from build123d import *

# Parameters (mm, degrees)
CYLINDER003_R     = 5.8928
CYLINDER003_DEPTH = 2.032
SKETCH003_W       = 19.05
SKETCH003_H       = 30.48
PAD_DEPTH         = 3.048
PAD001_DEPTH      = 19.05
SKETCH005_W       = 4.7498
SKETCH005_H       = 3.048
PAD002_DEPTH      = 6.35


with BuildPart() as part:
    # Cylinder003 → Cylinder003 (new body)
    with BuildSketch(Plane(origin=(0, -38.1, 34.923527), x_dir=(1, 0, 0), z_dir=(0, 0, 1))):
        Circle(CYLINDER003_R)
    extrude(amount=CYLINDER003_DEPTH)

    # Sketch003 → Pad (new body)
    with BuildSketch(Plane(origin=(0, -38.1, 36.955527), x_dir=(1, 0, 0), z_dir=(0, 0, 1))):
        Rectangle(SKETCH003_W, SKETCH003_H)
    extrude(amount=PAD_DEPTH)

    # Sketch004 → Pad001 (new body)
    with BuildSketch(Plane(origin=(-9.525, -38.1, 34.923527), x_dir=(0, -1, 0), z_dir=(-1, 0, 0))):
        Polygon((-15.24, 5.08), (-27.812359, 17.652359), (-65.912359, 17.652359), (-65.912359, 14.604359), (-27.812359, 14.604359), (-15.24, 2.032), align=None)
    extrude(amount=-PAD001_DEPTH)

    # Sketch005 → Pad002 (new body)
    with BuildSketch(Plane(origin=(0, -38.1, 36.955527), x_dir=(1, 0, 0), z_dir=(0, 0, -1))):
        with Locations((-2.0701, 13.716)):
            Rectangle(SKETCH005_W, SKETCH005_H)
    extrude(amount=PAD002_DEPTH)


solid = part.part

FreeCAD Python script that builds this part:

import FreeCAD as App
import Part
import Sketcher

V = App.Vector
Q = App.Units.Quantity


def add_polygon(sketch, points):
    """Adds a closed chain of lines whose ends are joined by coincident constraints."""
    first, n = sketch.GeometryCount, len(points)
    for a, b in zip(points, points[1:] + points[:1]):
        sketch.addGeometry(Part.LineSegment(App.Vector(*a, 0), App.Vector(*b, 0)), False)
    for i in range(n):
        sketch.addConstraint(Sketcher.Constraint("Coincident", first + i, 2, first + (i + 1) % n, 1))

doc = App.newDocument("Part")
params = doc.addObject("Spreadsheet::Sheet", "Params")
for row, (alias, value) in enumerate([
    ("sketch1_diameter", "0.464 in"),
    ("pad1_length", "0.08 in"),
    ("sketch2_height", "1.2 in"),
    ("sketch2_width", "0.75 in"),
    ("pad2_length", "0.12 in"),
    ("sketch3_width", "1.5 in"),
    ("sketch3_length", "0.7 in"),
    ("sketch3_height", "0.12 in"),
    ("pad3_length", "0.75 in"),
    ("sketch4_height", "0.12 in"),
    ("sketch4_width", "0.187 in"),
    ("pad4_length", "0.25 in"),
], start=1):
    params.set(f"A{row}", alias)
    params.set(f"B{row}", "=" + value)
    params.setAlias(f"B{row}", alias)

body = doc.addObject("PartDesign::Body", "Body")

# Sketch on XY plane
sketch1 = body.newObject("Sketcher::SketchObject", "Sketch")
sketch1.AttachmentSupport = (doc.getObject("XY_Plane"), [""])
sketch1.MapMode = "FlatFace"
sketch1.AttachmentOffset = App.Placement(V(0, 0, 34.923527), App.Rotation())
sketch1.addGeometry(Part.Circle(V(0, -38, 0), V(0, 0, 1), 6), False)
sketch1.addConstraint([
    Sketcher.Constraint("PointOnObject", 0, 3, -2),
    Sketcher.Constraint("Diameter", 0, Q("0.464 in")),
    Sketcher.Constraint("DistanceY", 0, 3, -1, 1, Q("1.5 in")),
])
sketch1.setExpression("Constraints[1]", "Params.sketch1_diameter")
pad1 = body.newObject("PartDesign::Pad", "Pad")
pad1.Profile = sketch1
pad1.setExpression("Length", "Params.pad1_length")

# Sketch on XY plane
sketch2 = body.newObject("Sketcher::SketchObject", "Sketch001")
sketch2.AttachmentSupport = (doc.getObject("XY_Plane"), [""])
sketch2.MapMode = "FlatFace"
sketch2.AttachmentOffset = App.Placement(V(0, 0, 36.955527), App.Rotation())
add_polygon(sketch2, [(-10, -23), (-10, -53), (10, -53), (10, -23)])  # lines 0-3
sketch2.addConstraint([
    Sketcher.Constraint("Vertical", 0),
    Sketcher.Constraint("Horizontal", 1),
    Sketcher.Constraint("Vertical", 2),
    Sketcher.Constraint("Horizontal", 3),
    Sketcher.Constraint("DistanceY", 0, 2, 0, 1, Q("1.2 in")),
    Sketcher.Constraint("DistanceX", 1, 1, 1, 2, Q("0.75 in")),
    Sketcher.Constraint("DistanceY", 0, 2, -1, 1, Q("2.1 in")),
    Sketcher.Constraint("DistanceX", 0, 2, -1, 1, Q("0.375 in")),
])
sketch2.setExpression("Constraints[8]", "Params.sketch2_height")
sketch2.setExpression("Constraints[9]", "Params.sketch2_width")
pad2 = body.newObject("PartDesign::Pad", "Pad001")
pad2.Profile = sketch2
pad2.setExpression("Length", "Params.pad2_length")

# Sketch on YZ plane
sketch3 = body.newObject("Sketcher::SketchObject", "Sketch002")
sketch3.AttachmentSupport = (doc.getObject("YZ_Plane"), [""])
sketch3.MapMode = "FlatFace"
sketch3.AttachmentOffset = App.Placement(V(0, 0, -0.375 * 25.4), App.Rotation())
add_polygon(sketch3, [(-22.9, 40), (-10.3, 52.6), (27.8, 52.6), (27.8, 49.5), (-10.3, 49.5), (-22.9, 37)])  # lines 0-5
sketch3.addConstraint([
    Sketcher.Constraint("Horizontal", 1),
    Sketcher.Constraint("Vertical", 2),
    Sketcher.Constraint("Horizontal", 3),
    Sketcher.Constraint("Vertical", 5),
    Sketcher.Constraint("Parallel", 0, 4),
    Sketcher.Constraint("Vertical", 0, 2, 3, 2),
    Sketcher.Constraint("DistanceX", 1, 1, 1, 2, Q("1.5 in")),
    Sketcher.Constraint("Angle", 0, Q("45 deg")),
    Sketcher.Constraint("Distance", 0, Q("0.7 in")),
    Sketcher.Constraint("DistanceY", 2, 2, 2, 1, Q("0.12 in")),
    Sketcher.Constraint("DistanceX", 4, 2, -1, 1, Q("0.9 in")),
    Sketcher.Constraint("DistanceY", -1, 1, 0, 2, 52.575886),
])
sketch3.setExpression("Constraints[12]", "Params.sketch3_width")
sketch3.setExpression("Constraints[14]", "Params.sketch3_length")
sketch3.setExpression("Constraints[15]", "Params.sketch3_height")
pad3 = body.newObject("PartDesign::Pad", "Pad002")
pad3.Profile = sketch3
pad3.setExpression("Length", "Params.pad3_length")

# Sketch on XY plane
sketch4 = body.newObject("Sketcher::SketchObject", "Sketch003")
sketch4.AttachmentSupport = (doc.getObject("XY_Plane"), [""])
sketch4.MapMode = "FlatFace"
sketch4.AttachmentOffset = App.Placement(V(0, 0, 36.955527), App.Rotation())
add_polygon(sketch4, [(-4.4, -53.3), (-4.4, -50.3), (0.3, -50.3), (0.3, -53.3)])  # lines 0-3
sketch4.addConstraint([
    Sketcher.Constraint("Vertical", 0),
    Sketcher.Constraint("Horizontal", 1),
    Sketcher.Constraint("Vertical", 2),
    Sketcher.Constraint("Horizontal", 3),
    Sketcher.Constraint("DistanceY", 0, 1, 0, 2, Q("0.12 in")),
    Sketcher.Constraint("DistanceY", 2, 2, -1, 1, Q("2.1 in")),
    Sketcher.Constraint("DistanceX", 1, 1, 1, 2, Q("0.187 in")),
    Sketcher.Constraint("DistanceX", 0, 2, -1, 1, Q("0.175 in")),
])
sketch4.setExpression("Constraints[8]", "Params.sketch4_height")
sketch4.setExpression("Constraints[10]", "Params.sketch4_width")
pad4 = body.newObject("PartDesign::Pad", "Pad003")
pad4.Profile = sketch4
pad4.setExpression("Length", "Params.pad4_length")
pad4.Reversed = True

doc.recompute()
